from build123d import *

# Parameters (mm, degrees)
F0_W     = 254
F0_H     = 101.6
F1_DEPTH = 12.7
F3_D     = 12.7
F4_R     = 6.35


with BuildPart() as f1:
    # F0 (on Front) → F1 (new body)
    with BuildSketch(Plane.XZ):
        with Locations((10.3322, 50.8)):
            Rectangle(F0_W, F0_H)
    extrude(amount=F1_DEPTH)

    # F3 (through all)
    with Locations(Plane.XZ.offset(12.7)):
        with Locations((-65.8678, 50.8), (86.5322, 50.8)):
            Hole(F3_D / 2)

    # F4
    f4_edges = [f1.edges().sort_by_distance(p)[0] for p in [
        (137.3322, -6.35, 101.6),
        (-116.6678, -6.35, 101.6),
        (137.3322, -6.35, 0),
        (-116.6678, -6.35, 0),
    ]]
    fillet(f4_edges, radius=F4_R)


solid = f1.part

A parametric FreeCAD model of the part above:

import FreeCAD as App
import Part
import Sketcher

V = App.Vector
Q = App.Units.Quantity


def edges_at(feature, points):
    """Names of the edges that pass closest to the given points."""
    edges = feature.Shape.Edges
    near = lambda p: min(range(len(edges)), key=lambda i: edges[i].distToShape(Part.Vertex(*p))[0])
    return sorted({f"Edge{near(p) + 1}" for p in points})

doc = App.newDocument("Part")
body = doc.addObject("PartDesign::Body", "Body")

sketch1 = body.newObject("Sketcher::SketchObject", "Sketch")
sketch1.AttachmentSupport = (doc.getObject("XZ_Plane"), [""])
sketch1.MapMode = "FlatFace"
sketch1.addGeometry([
    Part.LineSegment(V(-117, 102, 0), V(-117, 0, 0)),
    Part.LineSegment(V(-117, 0, 0), V(137, 0, 0)),
    Part.LineSegment(V(137, 0, 0), V(137, 102, 0)),
    Part.LineSegment(V(137, 102, 0), V(-117, 102, 0)),
], False)
sketch1.addConstraint([
    Sketcher.Constraint("Coincident", 0, 2, 1, 1),
    Sketcher.Constraint("Coincident", 1, 2, 2, 1),
    Sketcher.Constraint("Coincident", 2, 2, 3, 1),
    Sketcher.Constraint("Coincident", 3, 2, 0, 1),
    Sketcher.Constraint("Vertical", 0),
    Sketcher.Constraint("Horizontal", 1),
    Sketcher.Constraint("Vertical", 2),
    Sketcher.Constraint("Horizontal", 3),
    Sketcher.Constraint("PointOnObject", 0, 2, -1),
    Sketcher.Constraint("DistanceX", 1, 1, 1, 2, Q("10 in")),
    Sketcher.Constraint("DistanceY", 0, 2, 0, 1, Q("4 in")),
    Sketcher.Constraint("DistanceX", 0, 2, -1, 1, 116.6678),
])
pad1 = body.newObject("PartDesign::Pad", "Pad")
pad1.Profile = sketch1
pad1.Length = Q("0.5 in")

sketch2 = body.newObject("Sketcher::SketchObject", "Sketch001")
sketch2.AttachmentSupport = (doc.getObject("XZ_Plane"), [""])
sketch2.MapMode = "FlatFace"
sketch2.AttachmentOffset = App.Placement(V(0, 0, 0.5 * 25.4), App.Rotation())
sketch2.addGeometry([
    Part.Circle(V(-66, 51, 0), V(0, 0, 1), 6),
    Part.Circle(V(87, 51, 0), V(0, 0, 1), 6),
], False)
sketch2.addConstraint([
    Sketcher.Constraint("Equal", 0, 1),
    Sketcher.Constraint("Horizontal", 0, 3, 1, 3),
    Sketcher.Constraint("Diameter", 0, Q("0.5 in")),
    Sketcher.Constraint("DistanceY", -1, 1, 0, 3, Q("2 in")),
    Sketcher.Constraint("DistanceX", 0, 3, 1, 3, Q("6 in")),
    Sketcher.Constraint("DistanceX", 0, 3, -1, 1, 65.8678),
])
doc.recompute()
hole = body.newObject("PartDesign::Hole", "Hole")
hole.Profile = sketch2
hole.ThreadType = "None"
hole.Diameter = Q("0.5 in")
hole.DepthType = "ThroughAll"
doc.recompute()

fillet = body.newObject("PartDesign::Fillet", "Fillet")
fillet.Base = (hole, edges_at(hole, [
    (137.332, -6.35, 101.6),
    (-116.668, -6.35, 101.6),
    (137.332, -6.35, 0),
    (-116.668, -6.35, 0),
]))
fillet.Radius = Q("0.25 in")

doc.recompute()
